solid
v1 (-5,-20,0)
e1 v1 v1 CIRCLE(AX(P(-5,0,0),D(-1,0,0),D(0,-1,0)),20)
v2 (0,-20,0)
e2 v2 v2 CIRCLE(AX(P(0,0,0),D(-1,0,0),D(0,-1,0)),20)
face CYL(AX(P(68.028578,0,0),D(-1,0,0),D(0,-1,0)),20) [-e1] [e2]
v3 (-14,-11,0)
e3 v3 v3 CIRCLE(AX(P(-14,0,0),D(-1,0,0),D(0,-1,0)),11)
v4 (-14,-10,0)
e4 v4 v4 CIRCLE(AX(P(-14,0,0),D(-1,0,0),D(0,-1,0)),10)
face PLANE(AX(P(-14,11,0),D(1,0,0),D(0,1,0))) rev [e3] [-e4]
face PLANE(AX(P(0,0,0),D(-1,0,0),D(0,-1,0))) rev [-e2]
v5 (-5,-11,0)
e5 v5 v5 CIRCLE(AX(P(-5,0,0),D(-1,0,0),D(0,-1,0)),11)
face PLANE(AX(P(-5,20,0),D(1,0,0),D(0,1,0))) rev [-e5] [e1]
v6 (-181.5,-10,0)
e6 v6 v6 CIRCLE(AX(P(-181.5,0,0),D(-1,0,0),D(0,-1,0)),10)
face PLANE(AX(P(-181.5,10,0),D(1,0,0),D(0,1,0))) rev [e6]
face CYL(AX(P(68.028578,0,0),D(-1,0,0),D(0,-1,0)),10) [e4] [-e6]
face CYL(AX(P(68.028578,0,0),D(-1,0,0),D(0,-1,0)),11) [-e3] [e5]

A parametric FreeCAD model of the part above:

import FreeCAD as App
import Part
import Sketcher
Q = App.Units.Quantity


def add_polygon(sketch, points):
    """Adds a closed chain of lines whose ends are joined by coincident constraints."""
    first, n = sketch.GeometryCount, len(points)
    for a, b in zip(points, points[1:] + points[:1]):
        sketch.addGeometry(Part.LineSegment(App.Vector(*a, 0), App.Vector(*b, 0)), False)
    for i in range(n):
        sketch.addConstraint(Sketcher.Constraint("Coincident", first + i, 2, first + (i + 1) % n, 1))

doc = App.newDocument("Part")
params = doc.addObject("Spreadsheet::Sheet", "Params")
for row, (alias, value) in enumerate([
    ("sketch1_width", "5 mm"),
    ("sketch1_width2", "9 mm"),
    ("sketch1_height", "20 mm"),
    ("sketch1_height2", "1 mm"),
    ("sketch1_width3", "167.5 mm"),
    ("revolution_angle", "360 deg"),
], start=1):
    params.set(f"A{row}", alias)
    params.set(f"B{row}", "=" + value)
    params.setAlias(f"B{row}", alias)

body = doc.addObject("PartDesign::Body", "Body")

# Sketch on XY plane
sketch1 = body.newObject("Sketcher::SketchObject", "Sketch")
sketch1.AttachmentSupport = (doc.getObject("XY_Plane"), [""])
sketch1.MapMode = "FlatFace"
add_polygon(sketch1, [(0, 0), (0, 20), (-5, 20), (-5, 11), (-14, 11), (-14, 10), (-181.5, 10), (-181.5, 0)])  # lines 0-7
sketch1.addConstraint(Sketcher.Constraint("Vertical", 0))
sketch1.addConstraint(Sketcher.Constraint("Horizontal", 1))
sketch1.addConstraint(Sketcher.Constraint("Vertical", 2))
sketch1.addConstraint(Sketcher.Constraint("Horizontal", 3))
sketch1.addConstraint(Sketcher.Constraint("Vertical", 4))
sketch1.addConstraint(Sketcher.Constraint("Horizontal", 5))
sketch1.addConstraint(Sketcher.Constraint("Vertical", 6))
sketch1.addConstraint(Sketcher.Constraint("Horizontal", 7))
sketch1.addConstraint(Sketcher.Constraint("Coincident", 7, 2, -1, 1))
sketch1.addConstraint(Sketcher.Constraint("Equal", 3, 2))
sketch1.addConstraint(Sketcher.Constraint("DistanceX", 1, 2, 1, 1, Q("5 mm")))
sketch1.addConstraint(Sketcher.Constraint("DistanceX", 3, 2, 3, 1, Q("9 mm")))
sketch1.addConstraint(Sketcher.Constraint("DistanceY", 0, 1, 0, 2, Q("20 mm")))
sketch1.addConstraint(Sketcher.Constraint("DistanceY", 4, 2, 4, 1, Q("1 mm")))
sketch1.addConstraint(Sketcher.Constraint("DistanceX", 5, 2, 5, 1, Q("167.5 mm")))
sketch1.setExpression("Constraints[18]", "Params.sketch1_width")
sketch1.setExpression("Constraints[19]", "Params.sketch1_width2")
sketch1.setExpression("Constraints[20]", "Params.sketch1_height")
sketch1.setExpression("Constraints[21]", "Params.sketch1_height2")
sketch1.setExpression("Constraints[22]", "Params.sketch1_width3")
revolution = body.newObject("PartDesign::Revolution", "Revolution")
revolution.Profile = sketch1
revolution.ReferenceAxis = (sketch1, ["H_Axis"])
revolution.setExpression("Angle", "Params.revolution_angle")

doc.recompute()
